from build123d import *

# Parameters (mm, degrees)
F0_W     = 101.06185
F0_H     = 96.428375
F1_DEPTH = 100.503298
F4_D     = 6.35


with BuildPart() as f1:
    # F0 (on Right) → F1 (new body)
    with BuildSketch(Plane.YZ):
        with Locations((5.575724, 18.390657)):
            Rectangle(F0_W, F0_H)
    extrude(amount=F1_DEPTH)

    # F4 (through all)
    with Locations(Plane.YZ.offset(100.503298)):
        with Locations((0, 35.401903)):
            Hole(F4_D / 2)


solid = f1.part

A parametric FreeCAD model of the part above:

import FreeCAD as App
import Part
import Sketcher

V = App.Vector
Q = App.Units.Quantity


def add_polygon(sketch, points):
    """Adds a closed chain of lines whose ends are joined by coincident constraints."""
    first, n = sketch.GeometryCount, len(points)
    for a, b in zip(points, points[1:] + points[:1]):
        sketch.addGeometry(Part.LineSegment(App.Vector(*a, 0), App.Vector(*b, 0)), False)
    for i in range(n):
        sketch.addConstraint(Sketcher.Constraint("Coincident", first + i, 2, first + (i + 1) % n, 1))

doc = App.newDocument("Part")
body = doc.addObject("PartDesign::Body", "Body")

# Sketch on YZ plane
sketch1 = body.newObject("Sketcher::SketchObject", "Sketch")
sketch1.AttachmentSupport = (doc.getObject("YZ_Plane"), [""])
sketch1.MapMode = "FlatFace"
add_polygon(sketch1, [(-45, 67), (-45, -30), (56, -30), (56, 67)])  # lines 0-3
sketch1.addConstraint([
    Sketcher.Constraint("Vertical", 0),
    Sketcher.Constraint("Horizontal", 1),
    Sketcher.Constraint("Vertical", 2),
    Sketcher.Constraint("Horizontal", 3),
    Sketcher.Constraint("DistanceX", 1, 1, 1, 2, Q("101.06185 mm")),
    Sketcher.Constraint("DistanceX", 0, 2, -1, 1, Q("44.955201 mm")),
    Sketcher.Constraint("DistanceY", 0, 2, 0, 1, Q("96.428375 mm")),
    Sketcher.Constraint("DistanceY", 0, 2, -1, 1, Q("29.823531 mm")),
])
pad1 = body.newObject("PartDesign::Pad", "Pad")
pad1.Profile = sketch1
pad1.Length = 100.503298

# Sketch on YZ plane
sketch2 = body.newObject("Sketcher::SketchObject", "Sketch001")
sketch2.AttachmentSupport = (doc.getObject("YZ_Plane"), [""])
sketch2.MapMode = "FlatFace"
sketch2.AttachmentOffset = App.Placement(V(0, 0, 100.503298), App.Rotation())
sketch2.addGeometry(Part.Circle(V(0, 35.4, 0), V(0, 0, 1), 3.2), False)
sketch2.addConstraint([
    Sketcher.Constraint("PointOnObject", 0, 3, -2),
    Sketcher.Constraint("Diameter", 0, Q("0.25 in")),
    Sketcher.Constraint("DistanceY", -1, 1, 0, 3, Q("35.401903 mm")),
])
doc.recompute()
hole = body.newObject("PartDesign::Hole", "Hole")
hole.Profile = sketch2
hole.ThreadType = "None"
hole.Diameter = Q("0.25 in")
hole.DepthType = "ThroughAll"

doc.recompute()
